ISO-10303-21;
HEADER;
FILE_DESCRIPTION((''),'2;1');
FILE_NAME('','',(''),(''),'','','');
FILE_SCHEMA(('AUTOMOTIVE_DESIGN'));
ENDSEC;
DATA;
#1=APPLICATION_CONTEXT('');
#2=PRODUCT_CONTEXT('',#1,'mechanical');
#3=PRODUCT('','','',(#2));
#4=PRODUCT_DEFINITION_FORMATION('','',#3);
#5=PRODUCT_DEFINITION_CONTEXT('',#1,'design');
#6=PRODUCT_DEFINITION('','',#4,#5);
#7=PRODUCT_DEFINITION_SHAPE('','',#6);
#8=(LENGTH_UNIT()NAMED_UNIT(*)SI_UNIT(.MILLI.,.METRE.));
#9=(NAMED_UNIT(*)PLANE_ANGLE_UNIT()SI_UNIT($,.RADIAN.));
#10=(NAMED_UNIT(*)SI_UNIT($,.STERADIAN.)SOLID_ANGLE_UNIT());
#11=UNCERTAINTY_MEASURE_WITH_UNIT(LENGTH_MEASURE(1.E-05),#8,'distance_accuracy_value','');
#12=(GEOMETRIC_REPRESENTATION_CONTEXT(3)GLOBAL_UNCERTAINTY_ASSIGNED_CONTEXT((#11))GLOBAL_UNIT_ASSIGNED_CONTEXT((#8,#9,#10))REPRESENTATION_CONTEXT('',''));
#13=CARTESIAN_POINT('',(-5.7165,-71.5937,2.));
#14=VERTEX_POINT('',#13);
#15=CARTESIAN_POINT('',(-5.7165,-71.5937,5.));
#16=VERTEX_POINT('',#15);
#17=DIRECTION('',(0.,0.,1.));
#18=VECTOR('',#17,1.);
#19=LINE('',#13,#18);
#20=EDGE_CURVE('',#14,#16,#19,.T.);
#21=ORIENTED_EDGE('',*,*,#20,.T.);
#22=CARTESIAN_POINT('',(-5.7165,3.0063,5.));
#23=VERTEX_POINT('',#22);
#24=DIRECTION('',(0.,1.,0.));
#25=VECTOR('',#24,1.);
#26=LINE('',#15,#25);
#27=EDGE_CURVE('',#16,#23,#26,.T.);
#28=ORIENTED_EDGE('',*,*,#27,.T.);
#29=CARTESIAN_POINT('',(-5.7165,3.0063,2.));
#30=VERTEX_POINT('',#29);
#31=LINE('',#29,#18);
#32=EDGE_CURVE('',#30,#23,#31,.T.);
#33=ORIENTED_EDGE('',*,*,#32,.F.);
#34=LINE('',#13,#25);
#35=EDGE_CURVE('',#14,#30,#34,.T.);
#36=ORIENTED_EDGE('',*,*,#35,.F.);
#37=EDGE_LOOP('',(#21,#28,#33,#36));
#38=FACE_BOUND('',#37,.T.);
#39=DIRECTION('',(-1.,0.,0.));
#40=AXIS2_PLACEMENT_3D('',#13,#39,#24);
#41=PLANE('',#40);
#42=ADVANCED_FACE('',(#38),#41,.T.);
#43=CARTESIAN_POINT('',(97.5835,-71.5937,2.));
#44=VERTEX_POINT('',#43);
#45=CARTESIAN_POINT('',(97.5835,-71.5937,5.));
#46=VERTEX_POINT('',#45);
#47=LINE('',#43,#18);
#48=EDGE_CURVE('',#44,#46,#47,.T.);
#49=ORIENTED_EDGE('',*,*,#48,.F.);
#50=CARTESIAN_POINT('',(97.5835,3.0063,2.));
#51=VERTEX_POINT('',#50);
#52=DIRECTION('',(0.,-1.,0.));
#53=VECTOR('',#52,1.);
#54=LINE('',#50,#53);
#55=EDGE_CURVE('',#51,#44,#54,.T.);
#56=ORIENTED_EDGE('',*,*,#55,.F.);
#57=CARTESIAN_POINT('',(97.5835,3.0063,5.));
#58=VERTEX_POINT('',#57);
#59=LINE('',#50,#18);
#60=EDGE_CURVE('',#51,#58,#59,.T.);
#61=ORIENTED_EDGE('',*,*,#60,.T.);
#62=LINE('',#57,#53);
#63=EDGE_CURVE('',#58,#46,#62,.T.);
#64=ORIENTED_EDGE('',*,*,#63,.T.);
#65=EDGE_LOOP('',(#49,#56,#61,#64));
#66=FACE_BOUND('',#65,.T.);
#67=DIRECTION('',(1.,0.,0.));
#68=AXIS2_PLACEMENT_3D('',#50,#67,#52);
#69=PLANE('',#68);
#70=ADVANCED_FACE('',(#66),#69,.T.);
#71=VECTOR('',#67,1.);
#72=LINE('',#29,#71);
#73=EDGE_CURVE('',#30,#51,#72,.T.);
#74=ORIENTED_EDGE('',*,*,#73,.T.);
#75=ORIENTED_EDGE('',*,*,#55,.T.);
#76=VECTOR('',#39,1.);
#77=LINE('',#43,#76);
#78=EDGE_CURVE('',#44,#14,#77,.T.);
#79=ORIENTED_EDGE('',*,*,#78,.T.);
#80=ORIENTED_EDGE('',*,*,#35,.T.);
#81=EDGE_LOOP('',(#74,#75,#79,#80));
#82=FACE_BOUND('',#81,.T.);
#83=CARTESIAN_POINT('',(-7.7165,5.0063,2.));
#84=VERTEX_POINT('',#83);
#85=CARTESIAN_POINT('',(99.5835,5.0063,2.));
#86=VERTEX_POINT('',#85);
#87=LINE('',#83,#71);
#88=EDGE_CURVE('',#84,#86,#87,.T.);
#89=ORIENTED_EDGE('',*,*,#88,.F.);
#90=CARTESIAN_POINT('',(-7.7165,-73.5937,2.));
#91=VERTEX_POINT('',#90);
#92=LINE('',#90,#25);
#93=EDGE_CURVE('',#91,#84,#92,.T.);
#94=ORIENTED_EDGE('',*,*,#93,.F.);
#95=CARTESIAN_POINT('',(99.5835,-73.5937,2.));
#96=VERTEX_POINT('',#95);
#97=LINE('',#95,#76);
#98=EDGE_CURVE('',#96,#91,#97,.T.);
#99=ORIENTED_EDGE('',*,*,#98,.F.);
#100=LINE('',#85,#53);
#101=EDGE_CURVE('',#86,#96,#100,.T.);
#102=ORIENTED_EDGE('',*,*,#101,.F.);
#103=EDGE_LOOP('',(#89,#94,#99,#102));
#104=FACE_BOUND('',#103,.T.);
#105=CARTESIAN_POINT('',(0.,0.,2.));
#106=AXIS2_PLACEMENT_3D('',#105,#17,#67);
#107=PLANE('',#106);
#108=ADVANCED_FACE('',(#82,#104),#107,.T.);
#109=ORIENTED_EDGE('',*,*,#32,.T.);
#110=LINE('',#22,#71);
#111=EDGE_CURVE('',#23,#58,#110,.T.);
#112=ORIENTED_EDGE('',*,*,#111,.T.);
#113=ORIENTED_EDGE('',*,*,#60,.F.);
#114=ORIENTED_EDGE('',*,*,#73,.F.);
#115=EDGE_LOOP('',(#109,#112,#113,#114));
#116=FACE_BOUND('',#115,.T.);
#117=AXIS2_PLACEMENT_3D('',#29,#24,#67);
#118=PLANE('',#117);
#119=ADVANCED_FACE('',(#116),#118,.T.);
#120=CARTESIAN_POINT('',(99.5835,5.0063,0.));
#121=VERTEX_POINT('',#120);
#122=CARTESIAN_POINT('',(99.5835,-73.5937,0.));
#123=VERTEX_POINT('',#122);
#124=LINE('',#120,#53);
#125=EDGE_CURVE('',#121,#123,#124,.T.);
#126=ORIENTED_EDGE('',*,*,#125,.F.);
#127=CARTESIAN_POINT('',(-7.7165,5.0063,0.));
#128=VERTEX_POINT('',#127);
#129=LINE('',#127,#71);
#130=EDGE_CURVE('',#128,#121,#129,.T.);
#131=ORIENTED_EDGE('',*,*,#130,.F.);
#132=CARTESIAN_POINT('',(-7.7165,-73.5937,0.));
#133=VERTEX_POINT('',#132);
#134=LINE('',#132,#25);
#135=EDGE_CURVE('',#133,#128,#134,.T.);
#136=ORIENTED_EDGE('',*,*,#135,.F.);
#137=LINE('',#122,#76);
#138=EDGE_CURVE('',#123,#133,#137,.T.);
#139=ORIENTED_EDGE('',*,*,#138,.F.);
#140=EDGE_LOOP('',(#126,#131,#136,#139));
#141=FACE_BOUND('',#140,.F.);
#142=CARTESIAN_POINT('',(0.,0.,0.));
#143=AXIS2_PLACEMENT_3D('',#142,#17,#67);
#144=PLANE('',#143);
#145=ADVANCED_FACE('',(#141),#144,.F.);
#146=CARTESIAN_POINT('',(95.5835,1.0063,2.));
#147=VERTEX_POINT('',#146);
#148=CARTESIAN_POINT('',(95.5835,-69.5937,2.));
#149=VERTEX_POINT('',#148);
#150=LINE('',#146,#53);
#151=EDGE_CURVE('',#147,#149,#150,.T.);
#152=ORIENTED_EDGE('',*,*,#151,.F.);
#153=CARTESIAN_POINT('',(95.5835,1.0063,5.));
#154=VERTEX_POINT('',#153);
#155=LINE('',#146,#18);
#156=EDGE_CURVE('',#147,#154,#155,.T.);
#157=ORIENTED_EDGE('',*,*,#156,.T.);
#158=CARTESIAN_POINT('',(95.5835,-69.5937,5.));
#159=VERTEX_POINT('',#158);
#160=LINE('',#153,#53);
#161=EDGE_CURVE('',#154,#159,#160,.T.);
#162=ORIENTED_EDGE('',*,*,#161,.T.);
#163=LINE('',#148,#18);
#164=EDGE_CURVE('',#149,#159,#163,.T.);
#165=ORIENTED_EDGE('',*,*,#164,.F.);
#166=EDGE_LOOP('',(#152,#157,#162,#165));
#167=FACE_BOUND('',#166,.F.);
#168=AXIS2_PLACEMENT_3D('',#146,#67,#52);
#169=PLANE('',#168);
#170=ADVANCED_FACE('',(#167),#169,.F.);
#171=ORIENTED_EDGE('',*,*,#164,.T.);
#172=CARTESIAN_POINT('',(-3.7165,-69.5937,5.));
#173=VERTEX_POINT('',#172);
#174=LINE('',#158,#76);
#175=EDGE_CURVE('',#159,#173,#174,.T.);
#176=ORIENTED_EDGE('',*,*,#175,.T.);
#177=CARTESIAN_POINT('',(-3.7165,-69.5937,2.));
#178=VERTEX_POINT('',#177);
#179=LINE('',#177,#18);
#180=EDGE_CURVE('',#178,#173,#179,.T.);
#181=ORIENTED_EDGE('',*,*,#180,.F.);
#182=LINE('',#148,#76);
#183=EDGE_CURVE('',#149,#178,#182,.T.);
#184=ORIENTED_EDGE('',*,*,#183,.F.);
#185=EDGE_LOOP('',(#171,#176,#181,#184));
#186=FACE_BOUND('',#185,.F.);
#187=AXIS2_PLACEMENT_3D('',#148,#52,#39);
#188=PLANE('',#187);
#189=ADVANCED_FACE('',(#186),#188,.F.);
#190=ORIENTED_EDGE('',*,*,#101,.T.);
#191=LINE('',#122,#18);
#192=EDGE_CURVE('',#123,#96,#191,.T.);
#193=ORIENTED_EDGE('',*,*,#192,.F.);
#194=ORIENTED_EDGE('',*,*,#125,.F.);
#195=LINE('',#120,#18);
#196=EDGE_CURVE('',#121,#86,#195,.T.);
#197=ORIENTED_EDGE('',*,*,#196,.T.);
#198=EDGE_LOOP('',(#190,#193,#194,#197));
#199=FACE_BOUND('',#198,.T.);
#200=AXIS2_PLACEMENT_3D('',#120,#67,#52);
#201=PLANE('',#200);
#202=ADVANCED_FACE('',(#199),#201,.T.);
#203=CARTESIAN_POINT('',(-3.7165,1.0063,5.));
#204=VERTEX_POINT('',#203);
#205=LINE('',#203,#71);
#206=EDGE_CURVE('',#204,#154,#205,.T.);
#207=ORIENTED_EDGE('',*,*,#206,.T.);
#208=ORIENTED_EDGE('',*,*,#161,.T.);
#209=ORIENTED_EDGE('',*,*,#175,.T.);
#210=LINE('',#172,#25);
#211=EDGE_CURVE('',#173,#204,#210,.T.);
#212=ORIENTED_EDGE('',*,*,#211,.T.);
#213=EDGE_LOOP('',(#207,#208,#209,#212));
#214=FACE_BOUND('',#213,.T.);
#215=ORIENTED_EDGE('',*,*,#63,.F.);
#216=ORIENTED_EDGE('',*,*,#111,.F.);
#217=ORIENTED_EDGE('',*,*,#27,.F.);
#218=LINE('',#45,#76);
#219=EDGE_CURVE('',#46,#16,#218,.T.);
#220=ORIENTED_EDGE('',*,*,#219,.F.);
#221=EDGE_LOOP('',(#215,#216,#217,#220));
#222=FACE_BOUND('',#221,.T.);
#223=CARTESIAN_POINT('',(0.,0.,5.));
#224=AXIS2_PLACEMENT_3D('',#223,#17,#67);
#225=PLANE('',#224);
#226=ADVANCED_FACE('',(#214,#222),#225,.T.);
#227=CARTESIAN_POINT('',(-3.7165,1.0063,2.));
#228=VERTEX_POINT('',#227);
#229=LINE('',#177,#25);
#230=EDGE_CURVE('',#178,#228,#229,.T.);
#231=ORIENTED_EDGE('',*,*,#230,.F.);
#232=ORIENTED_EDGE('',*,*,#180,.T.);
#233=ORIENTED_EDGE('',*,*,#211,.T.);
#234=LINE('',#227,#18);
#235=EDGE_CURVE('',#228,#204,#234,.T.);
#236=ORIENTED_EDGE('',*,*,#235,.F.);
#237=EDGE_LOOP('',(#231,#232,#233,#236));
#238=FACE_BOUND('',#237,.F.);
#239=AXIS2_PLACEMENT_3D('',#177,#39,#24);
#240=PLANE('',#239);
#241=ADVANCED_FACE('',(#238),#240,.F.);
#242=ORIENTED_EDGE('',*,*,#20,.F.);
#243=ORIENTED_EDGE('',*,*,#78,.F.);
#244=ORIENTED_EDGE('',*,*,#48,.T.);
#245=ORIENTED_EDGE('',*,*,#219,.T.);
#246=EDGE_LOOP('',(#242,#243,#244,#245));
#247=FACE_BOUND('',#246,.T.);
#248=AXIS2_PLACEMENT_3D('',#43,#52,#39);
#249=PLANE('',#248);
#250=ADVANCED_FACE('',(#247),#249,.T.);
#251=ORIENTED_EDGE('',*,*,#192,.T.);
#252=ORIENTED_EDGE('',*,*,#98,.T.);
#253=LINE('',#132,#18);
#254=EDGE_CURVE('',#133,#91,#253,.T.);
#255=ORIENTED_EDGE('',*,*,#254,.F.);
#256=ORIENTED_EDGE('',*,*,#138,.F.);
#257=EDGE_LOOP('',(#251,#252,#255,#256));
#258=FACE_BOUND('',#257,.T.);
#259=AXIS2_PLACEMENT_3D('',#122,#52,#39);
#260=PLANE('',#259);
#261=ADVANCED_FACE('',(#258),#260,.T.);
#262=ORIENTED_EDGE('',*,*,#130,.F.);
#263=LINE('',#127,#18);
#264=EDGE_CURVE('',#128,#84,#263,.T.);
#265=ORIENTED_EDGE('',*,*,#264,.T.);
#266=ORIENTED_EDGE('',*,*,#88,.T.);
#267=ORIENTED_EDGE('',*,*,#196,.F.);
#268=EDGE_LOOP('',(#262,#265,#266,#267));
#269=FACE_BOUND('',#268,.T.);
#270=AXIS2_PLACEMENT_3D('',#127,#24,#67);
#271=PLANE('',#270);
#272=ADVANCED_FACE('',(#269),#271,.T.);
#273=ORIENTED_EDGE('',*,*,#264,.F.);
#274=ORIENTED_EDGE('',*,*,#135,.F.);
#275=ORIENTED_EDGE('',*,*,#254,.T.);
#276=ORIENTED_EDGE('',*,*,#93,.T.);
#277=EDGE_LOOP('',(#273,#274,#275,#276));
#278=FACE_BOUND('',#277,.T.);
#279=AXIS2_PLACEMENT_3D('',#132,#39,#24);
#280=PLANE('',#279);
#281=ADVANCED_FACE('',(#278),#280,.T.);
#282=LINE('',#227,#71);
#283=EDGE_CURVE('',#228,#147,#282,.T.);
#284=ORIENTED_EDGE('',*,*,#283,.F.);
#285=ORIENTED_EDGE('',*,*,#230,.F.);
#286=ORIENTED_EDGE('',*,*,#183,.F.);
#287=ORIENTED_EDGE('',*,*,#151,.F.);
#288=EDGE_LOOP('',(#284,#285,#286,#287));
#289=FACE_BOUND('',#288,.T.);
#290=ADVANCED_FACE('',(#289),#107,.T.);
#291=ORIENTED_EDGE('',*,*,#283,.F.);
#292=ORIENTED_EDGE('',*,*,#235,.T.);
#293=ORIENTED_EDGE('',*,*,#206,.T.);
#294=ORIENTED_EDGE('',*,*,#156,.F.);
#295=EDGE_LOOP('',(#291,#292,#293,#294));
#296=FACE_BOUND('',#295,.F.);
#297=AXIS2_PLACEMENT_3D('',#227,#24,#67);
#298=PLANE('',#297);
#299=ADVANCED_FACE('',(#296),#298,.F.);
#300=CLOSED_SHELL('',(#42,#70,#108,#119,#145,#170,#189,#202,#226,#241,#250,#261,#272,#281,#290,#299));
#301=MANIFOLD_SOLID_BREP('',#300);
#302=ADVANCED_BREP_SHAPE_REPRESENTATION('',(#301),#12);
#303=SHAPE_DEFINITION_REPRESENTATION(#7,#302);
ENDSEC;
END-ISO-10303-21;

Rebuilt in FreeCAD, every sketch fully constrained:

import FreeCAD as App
import Part
import Sketcher
from FreeCAD import Vector
Q = App.Units.Quantity


def add_polygon(sketch, points):
    """Adds a closed chain of lines whose ends are joined by coincident constraints."""
    first, n = sketch.GeometryCount, len(points)
    for a, b in zip(points, points[1:] + points[:1]):
        sketch.addGeometry(Part.LineSegment(App.Vector(*a, 0), App.Vector(*b, 0)), False)
    for i in range(n):
        sketch.addConstraint(Sketcher.Constraint("Coincident", first + i, 2, first + (i + 1) % n, 1))

doc = App.newDocument("Part")
body = doc.addObject("PartDesign::Body", "Body")

# Sketch on XY plane
sketch1 = body.newObject("Sketcher::SketchObject", "Sketch")
sketch1.AttachmentSupport = (doc.getObject("XY_Plane"), [""])
sketch1.MapMode = "FlatFace"
add_polygon(sketch1, [(99.5835, 5.0063), (-7.7165, 5.0063), (-7.7165, -73.5937), (99.5835, -73.5937)])  # lines 0-3
sketch1.addConstraint(Sketcher.Constraint("Horizontal", 0))
sketch1.addConstraint(Sketcher.Constraint("Vertical", 1))
sketch1.addConstraint(Sketcher.Constraint("Horizontal", 2))
sketch1.addConstraint(Sketcher.Constraint("Vertical", 3))
sketch1.addConstraint(Sketcher.Constraint("DistanceX", 0, 2, 0, 1, Q("107.3 mm")))
sketch1.addConstraint(Sketcher.Constraint("DistanceY", 1, 2, 1, 1, Q("78.6 mm")))
sketch1.addConstraint(Sketcher.Constraint("DistanceX", 0, 2, -1, 1, Q("7.7165 mm")))
sketch1.addConstraint(Sketcher.Constraint("DistanceY", -1, 1, 0, 2, Q("5.0063 mm")))
pad1 = body.newObject("PartDesign::Pad", "Pad")
pad1.Profile = sketch1
pad1.Length = 2

# Sketch on XY plane
sketch2 = body.newObject("Sketcher::SketchObject", "Sketch001")
sketch2.AttachmentSupport = (doc.getObject("XY_Plane"), [""])
sketch2.MapMode = "FlatFace"
sketch2.AttachmentOffset = App.Placement(Vector(0, 0, 2), App.Rotation())
add_polygon(sketch2, [(97.5835, 3.0063), (-5.7165, 3.0063), (-5.7165, -71.5937), (97.5835, -71.5937)])  # lines 0-3
add_polygon(sketch2, [(-3.7165, -69.5937), (-3.7165, 1.0063), (95.5835, 1.0063), (95.5835, -69.5937)])  # lines 4-7
sketch2.addConstraint(Sketcher.Constraint("Horizontal", 0))
sketch2.addConstraint(Sketcher.Constraint("Vertical", 1))
sketch2.addConstraint(Sketcher.Constraint("Horizontal", 2))
sketch2.addConstraint(Sketcher.Constraint("Vertical", 3))
sketch2.addConstraint(Sketcher.Constraint("Vertical", 4))
sketch2.addConstraint(Sketcher.Constraint("Horizontal", 5))
sketch2.addConstraint(Sketcher.Constraint("Vertical", 6))
sketch2.addConstraint(Sketcher.Constraint("Horizontal", 7))
sketch2.addConstraint(Sketcher.Constraint("DistanceX", 0, 2, 4, 2, Q("2 mm")))
sketch2.addConstraint(Sketcher.Constraint("DistanceY", 4, 2, 0, 2, Q("2 mm")))
sketch2.addConstraint(Sketcher.Constraint("DistanceX", 5, 2, 3, 2, Q("2 mm")))
sketch2.addConstraint(Sketcher.Constraint("DistanceY", 2, 2, 6, 2, Q("2 mm")))
sketch2.addConstraint(Sketcher.Constraint("DistanceX", 0, 2, 0, 1, Q("103.3 mm")))
sketch2.addConstraint(Sketcher.Constraint("DistanceY", 1, 2, 1, 1, Q("74.6 mm")))
sketch2.addConstraint(Sketcher.Constraint("DistanceX", 0, 2, -1, 1, Q("5.7165 mm")))
sketch2.addConstraint(Sketcher.Constraint("DistanceY", -1, 1, 0, 2, Q("3.0063 mm")))
pad2 = body.newObject("PartDesign::Pad", "Pad001")
pad2.Profile = sketch2
pad2.Length = 3

doc.recompute()
